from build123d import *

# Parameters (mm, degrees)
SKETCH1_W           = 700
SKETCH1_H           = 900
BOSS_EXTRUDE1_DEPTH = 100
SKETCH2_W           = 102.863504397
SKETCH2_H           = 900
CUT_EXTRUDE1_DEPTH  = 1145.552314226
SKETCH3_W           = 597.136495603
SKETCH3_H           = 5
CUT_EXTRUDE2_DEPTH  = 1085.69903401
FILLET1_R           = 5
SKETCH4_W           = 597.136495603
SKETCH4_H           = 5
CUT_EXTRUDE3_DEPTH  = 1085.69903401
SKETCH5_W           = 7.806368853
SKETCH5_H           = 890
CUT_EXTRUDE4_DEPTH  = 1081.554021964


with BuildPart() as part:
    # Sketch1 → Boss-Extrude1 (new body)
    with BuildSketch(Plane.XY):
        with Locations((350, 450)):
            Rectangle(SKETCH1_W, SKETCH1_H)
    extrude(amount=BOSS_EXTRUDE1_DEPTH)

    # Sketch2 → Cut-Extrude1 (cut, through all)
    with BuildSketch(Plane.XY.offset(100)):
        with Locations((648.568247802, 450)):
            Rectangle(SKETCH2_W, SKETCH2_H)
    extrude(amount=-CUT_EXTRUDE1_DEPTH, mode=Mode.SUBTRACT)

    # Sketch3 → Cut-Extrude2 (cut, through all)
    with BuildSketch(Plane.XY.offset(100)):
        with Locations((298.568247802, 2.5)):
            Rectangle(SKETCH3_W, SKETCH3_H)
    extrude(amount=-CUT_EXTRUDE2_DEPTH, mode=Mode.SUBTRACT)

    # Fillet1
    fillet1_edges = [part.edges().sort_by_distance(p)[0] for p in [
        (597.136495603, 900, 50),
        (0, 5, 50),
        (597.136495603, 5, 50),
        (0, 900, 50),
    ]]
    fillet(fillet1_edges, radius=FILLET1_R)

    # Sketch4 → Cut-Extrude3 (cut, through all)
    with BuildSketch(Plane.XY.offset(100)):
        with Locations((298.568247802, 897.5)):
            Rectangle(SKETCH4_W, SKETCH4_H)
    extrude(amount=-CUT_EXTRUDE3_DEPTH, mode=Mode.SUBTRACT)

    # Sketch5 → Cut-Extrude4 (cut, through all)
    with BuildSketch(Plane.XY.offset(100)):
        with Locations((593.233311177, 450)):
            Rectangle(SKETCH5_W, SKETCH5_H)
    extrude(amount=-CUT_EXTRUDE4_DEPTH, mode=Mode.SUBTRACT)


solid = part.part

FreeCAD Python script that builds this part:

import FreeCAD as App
import Part
import Sketcher
Q = App.Units.Quantity


def edges_at(feature, points):
    """Names of the edges that pass closest to the given points."""
    edges = feature.Shape.Edges
    near = lambda p: min(range(len(edges)), key=lambda i: edges[i].distToShape(Part.Vertex(*p))[0])
    return sorted({f"Edge{near(p) + 1}" for p in points})

doc = App.newDocument("Part")
body = doc.addObject("PartDesign::Body", "Body")

# Sketch on XY plane
sketch1 = doc.addObject("Sketcher::SketchObject", "Sketch")
body.addObject(sketch1)
sketch1.AttachmentSupport = (doc.XY_Plane, [""])
sketch1.MapMode = "FlatFace"
sketch1.addGeometry([
    Part.LineSegment(App.Vector(0, 900, 0), App.Vector(0, 0, 0)),
    Part.LineSegment(App.Vector(0, 0, 0), App.Vector(700, 0, 0)),
    Part.LineSegment(App.Vector(700, 0, 0), App.Vector(700, 900, 0)),
    Part.LineSegment(App.Vector(700, 900, 0), App.Vector(0, 900, 0)),
], False)
sketch1.addConstraint([
    Sketcher.Constraint("Coincident", 0, 2, 1, 1),
    Sketcher.Constraint("Coincident", 1, 2, 2, 1),
    Sketcher.Constraint("Coincident", 2, 2, 3, 1),
    Sketcher.Constraint("Coincident", 3, 2, 0, 1),
    Sketcher.Constraint("Vertical", 0),
    Sketcher.Constraint("Horizontal", 1),
    Sketcher.Constraint("Vertical", 2),
    Sketcher.Constraint("Horizontal", 3),
    Sketcher.Constraint("Coincident", 0, 2, -1, 1),
    Sketcher.Constraint("DistanceX", 1, 1, 1, 2, Q("700 mm")),
    Sketcher.Constraint("DistanceY", 0, 2, 0, 1, Q("900 mm")),
])
pad1 = doc.addObject("PartDesign::Pad", "Pad")
body.addObject(pad1)
pad1.Profile = sketch1
pad1.Length = 100

# Sketch on XY plane
sketch2 = doc.addObject("Sketcher::SketchObject", "Sketch001")
body.addObject(sketch2)
sketch2.AttachmentSupport = (doc.XY_Plane, [""])
sketch2.MapMode = "FlatFace"
sketch2.AttachmentOffset = App.Placement(App.Vector(0, 0, 100), App.Rotation())
sketch2.addGeometry([
    Part.LineSegment(App.Vector(597.136496, 900, 0), App.Vector(597.136496, 0, 0)),
    Part.LineSegment(App.Vector(597.136496, 0, 0), App.Vector(700, 0, 0)),
    Part.LineSegment(App.Vector(700, 0, 0), App.Vector(700, 900, 0)),
    Part.LineSegment(App.Vector(700, 900, 0), App.Vector(597.136496, 900, 0)),
], False)
sketch2.addConstraint([
    Sketcher.Constraint("Coincident", 0, 2, 1, 1),
    Sketcher.Constraint("Coincident", 1, 2, 2, 1),
    Sketcher.Constraint("Coincident", 2, 2, 3, 1),
    Sketcher.Constraint("Coincident", 3, 2, 0, 1),
    Sketcher.Constraint("Vertical", 0),
    Sketcher.Constraint("Horizontal", 1),
    Sketcher.Constraint("Vertical", 2),
    Sketcher.Constraint("Horizontal", 3),
    Sketcher.Constraint("PointOnObject", 0, 2, -1),
    Sketcher.Constraint("DistanceY", 0, 2, 0, 1, Q("900 mm")),
    Sketcher.Constraint("DistanceX", -1, 1, 1, 2, Q("700 mm")),
    Sketcher.Constraint("DistanceX", 1, 1, 1, 2, Q("102.863504 mm")),
])
pocket1 = doc.addObject("PartDesign::Pocket", "Pocket")
body.addObject(pocket1)
pocket1.Profile = sketch2
pocket1.Type = "ThroughAll"

# Sketch on XY plane
sketch3 = doc.addObject("Sketcher::SketchObject", "Sketch002")
body.addObject(sketch3)
sketch3.AttachmentSupport = (doc.XY_Plane, [""])
sketch3.MapMode = "FlatFace"
sketch3.AttachmentOffset = App.Placement(App.Vector(0, 0, 100), App.Rotation())
sketch3.addGeometry([
    Part.LineSegment(App.Vector(0, 5, 0), App.Vector(0, 0, 0)),
    Part.LineSegment(App.Vector(0, 0, 0), App.Vector(597.136496, 0, 0)),
    Part.LineSegment(App.Vector(597.136496, 0, 0), App.Vector(597.136496, 5, 0)),
    Part.LineSegment(App.Vector(597.136496, 5, 0), App.Vector(0, 5, 0)),
], False)
sketch3.addConstraint([
    Sketcher.Constraint("Coincident", 0, 2, 1, 1),
    Sketcher.Constraint("Coincident", 1, 2, 2, 1),
    Sketcher.Constraint("Coincident", 2, 2, 3, 1),
    Sketcher.Constraint("Coincident", 3, 2, 0, 1),
    Sketcher.Constraint("Vertical", 0),
    Sketcher.Constraint("Horizontal", 1),
    Sketcher.Constraint("Vertical", 2),
    Sketcher.Constraint("Horizontal", 3),
    Sketcher.Constraint("Coincident", 0, 2, -1, 1),
    Sketcher.Constraint("DistanceY", 0, 2, 0, 1, Q("5 mm")),
    Sketcher.Constraint("DistanceX", 1, 1, 1, 2, Q("597.136496 mm")),
])
pocket2 = doc.addObject("PartDesign::Pocket", "Pocket001")
body.addObject(pocket2)
pocket2.Profile = sketch3
pocket2.Type = "ThroughAll"
doc.recompute()

fillet = doc.addObject("PartDesign::Fillet", "Fillet")
body.addObject(fillet)
fillet.Base = (pocket2, edges_at(pocket2, [
    (597.136, 900, 50),
    (0, 5, 50),
    (597.136, 5, 50),
    (0, 900, 50),
]))
fillet.Radius = 5

# Sketch on XY plane
sketch4 = doc.addObject("Sketcher::SketchObject", "Sketch003")
body.addObject(sketch4)
sketch4.AttachmentSupport = (doc.XY_Plane, [""])
sketch4.MapMode = "FlatFace"
sketch4.AttachmentOffset = App.Placement(App.Vector(0, 0, 100), App.Rotation())
sketch4.addGeometry([
    Part.LineSegment(App.Vector(0, 900, 0), App.Vector(0, 895, 0)),
    Part.LineSegment(App.Vector(0, 895, 0), App.Vector(597.136496, 895, 0)),
    Part.LineSegment(App.Vector(597.136496, 895, 0), App.Vector(597.136496, 900, 0)),
    Part.LineSegment(App.Vector(597.136496, 900, 0), App.Vector(0, 900, 0)),
], False)
sketch4.addConstraint([
    Sketcher.Constraint("Coincident", 0, 2, 1, 1),
    Sketcher.Constraint("Coincident", 1, 2, 2, 1),
    Sketcher.Constraint("Coincident", 2, 2, 3, 1),
    Sketcher.Constraint("Coincident", 3, 2, 0, 1),
    Sketcher.Constraint("Vertical", 0),
    Sketcher.Constraint("Horizontal", 1),
    Sketcher.Constraint("Vertical", 2),
    Sketcher.Constraint("Horizontal", 3),
    Sketcher.Constraint("PointOnObject", 0, 2, -2),
    Sketcher.Constraint("DistanceY", 0, 2, 0, 1, Q("5 mm")),
    Sketcher.Constraint("DistanceY", -1, 1, 0, 2, Q("895 mm")),
    Sketcher.Constraint("DistanceX", 1, 1, 1, 2, Q("597.136496 mm")),
])
pocket3 = doc.addObject("PartDesign::Pocket", "Pocket002")
body.addObject(pocket3)
pocket3.Profile = sketch4
pocket3.Type = "ThroughAll"

# Sketch on XY plane
sketch5 = doc.addObject("Sketcher::SketchObject", "Sketch004")
body.addObject(sketch5)
sketch5.AttachmentSupport = (doc.XY_Plane, [""])
sketch5.MapMode = "FlatFace"
sketch5.AttachmentOffset = App.Placement(App.Vector(0, 0, 100), App.Rotation())
sketch5.addGeometry([
    Part.LineSegment(App.Vector(589.330127, 895, 0), App.Vector(589.330127, 5, 0)),
    Part.LineSegment(App.Vector(589.330127, 5, 0), App.Vector(597.136496, 5, 0)),
    Part.LineSegment(App.Vector(597.136496, 5, 0), App.Vector(597.136496, 895, 0)),
    Part.LineSegment(App.Vector(597.136496, 895, 0), App.Vector(589.330127, 895, 0)),
], False)
sketch5.addConstraint([
    Sketcher.Constraint("Coincident", 0, 2, 1, 1),
    Sketcher.Constraint("Coincident", 1, 2, 2, 1),
    Sketcher.Constraint("Coincident", 2, 2, 3, 1),
    Sketcher.Constraint("Coincident", 3, 2, 0, 1),
    Sketcher.Constraint("Vertical", 0),
    Sketcher.Constraint("Horizontal", 1),
    Sketcher.Constraint("Vertical", 2),
    Sketcher.Constraint("Horizontal", 3),
    Sketcher.Constraint("DistanceY", 0, 2, 0, 1, Q("890 mm")),
    Sketcher.Constraint("DistanceY", -1, 1, 0, 2, Q("5 mm")),
    Sketcher.Constraint("DistanceX", 1, 1, 1, 2, Q("7.806369 mm")),
    Sketcher.Constraint("DistanceX", -1, 1, 0, 2, Q("589.330127 mm")),
])
pocket4 = doc.addObject("PartDesign::Pocket", "Pocket003")
body.addObject(pocket4)
pocket4.Profile = sketch5
pocket4.Type = "ThroughAll"

doc.recompute()
